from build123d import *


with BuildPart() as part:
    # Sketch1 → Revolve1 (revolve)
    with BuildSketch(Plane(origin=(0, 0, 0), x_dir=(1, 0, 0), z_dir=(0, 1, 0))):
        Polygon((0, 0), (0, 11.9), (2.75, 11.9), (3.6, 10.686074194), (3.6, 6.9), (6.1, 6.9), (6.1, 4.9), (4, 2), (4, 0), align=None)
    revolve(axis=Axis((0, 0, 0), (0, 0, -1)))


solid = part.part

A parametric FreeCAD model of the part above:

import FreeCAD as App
import Part
import Sketcher
from FreeCAD import Vector
Q = App.Units.Quantity


def add_polygon(sketch, points):
    """Adds a closed chain of lines whose ends are joined by coincident constraints."""
    first, n = sketch.GeometryCount, len(points)
    for a, b in zip(points, points[1:] + points[:1]):
        sketch.addGeometry(Part.LineSegment(App.Vector(*a, 0), App.Vector(*b, 0)), False)
    for i in range(n):
        sketch.addConstraint(Sketcher.Constraint("Coincident", first + i, 2, first + (i + 1) % n, 1))

doc = App.newDocument("Part")
body = doc.addObject("PartDesign::Body", "Body")

sketch1 = body.newObject("Sketcher::SketchObject", "Sketch")
sketch1.AttachmentSupport = (doc.getObject("XZ_Plane"), [""])
sketch1.MapMode = "FlatFace"
add_polygon(sketch1, [(0, -11.9), (0, 0), (4, 0), (4, -2), (6.1, -4.9), (6.1, -6.9), (3.6, -6.9), (3.6, -10.686074), (2.75, -11.9)])
sketch1.addConstraint(Sketcher.Constraint("Vertical", 0))
sketch1.addConstraint(Sketcher.Constraint("Horizontal", 1))
sketch1.addConstraint(Sketcher.Constraint("Vertical", 2))
sketch1.addConstraint(Sketcher.Constraint("Vertical", 4))
sketch1.addConstraint(Sketcher.Constraint("Horizontal", 5))
sketch1.addConstraint(Sketcher.Constraint("Vertical", 6))
sketch1.addConstraint(Sketcher.Constraint("Horizontal", 8))
sketch1.addConstraint(Sketcher.Constraint("Coincident", 0, 2, -1, 1))
sketch1.addConstraint(Sketcher.Constraint("Equal", 2, 4))
sketch1.addConstraint(Sketcher.Constraint("DistanceX", 1, 1, 1, 2, Q("4 mm")))
sketch1.addConstraint(Sketcher.Constraint("DistanceY", 2, 2, 2, 1, Q("2 mm")))
sketch1.addConstraint(Sketcher.Constraint("Angle", 7, Q("-125 deg")))
sketch1.addConstraint(Sketcher.Constraint("DistanceX", 5, 2, 5, 1, Q("2.5 mm")))
sketch1.addConstraint(Sketcher.Constraint("DistanceY", 0, 1, 0, 2, Q("11.9 mm")))
sketch1.addConstraint(Sketcher.Constraint("DistanceY", 7, 2, 5, 2, Q("5 mm")))
sketch1.addConstraint(Sketcher.Constraint("DistanceX", 8, 2, 8, 1, Q("2.75 mm")))
sketch1.addConstraint(Sketcher.Constraint("DistanceX", -1, 1, 3, 2, Q("6.1 mm")))
revolution = body.newObject("PartDesign::Revolution", "Revolution")
revolution.Profile = sketch1
revolution.ReferenceAxis = (sketch1, ["V_Axis"])
revolution.Angle = 360

doc.recompute()
